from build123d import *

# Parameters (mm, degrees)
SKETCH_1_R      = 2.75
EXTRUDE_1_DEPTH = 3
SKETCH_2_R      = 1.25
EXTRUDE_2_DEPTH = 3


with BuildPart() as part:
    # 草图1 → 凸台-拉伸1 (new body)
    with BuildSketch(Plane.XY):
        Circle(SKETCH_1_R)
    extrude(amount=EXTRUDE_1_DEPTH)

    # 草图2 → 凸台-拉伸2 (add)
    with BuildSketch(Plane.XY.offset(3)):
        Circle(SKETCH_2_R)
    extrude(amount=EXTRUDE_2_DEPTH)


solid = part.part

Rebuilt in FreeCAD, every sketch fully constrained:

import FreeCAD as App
import Part
import Sketcher
from FreeCAD import Vector

doc = App.newDocument("Part")
body = doc.addObject("PartDesign::Body", "Body")

sketch1 = body.newObject("Sketcher::SketchObject", "Sketch")
sketch1.AttachmentSupport = (doc.getObject("XY_Plane"), [""])
sketch1.MapMode = "FlatFace"
sketch1.addGeometry(Part.Circle(Vector(0, 0, 0), Vector(0, 0, 1), 2.75), False)
sketch1.addConstraint(Sketcher.Constraint("Coincident", 0, 3, -1, 1))
sketch1.addConstraint(Sketcher.Constraint("Diameter", 0, 5.5))
pad1 = body.newObject("PartDesign::Pad", "Pad")
pad1.Profile = sketch1
pad1.Length = 3

sketch2 = body.newObject("Sketcher::SketchObject", "Sketch001")
sketch2.AttachmentSupport = (doc.getObject("XY_Plane"), [""])
sketch2.MapMode = "FlatFace"
sketch2.AttachmentOffset = App.Placement(Vector(0, 0, 3), App.Rotation())
sketch2.addGeometry(Part.Circle(Vector(0, 0, 0), Vector(0, 0, 1), 1.25), False)
sketch2.addConstraint(Sketcher.Constraint("Coincident", 0, 3, -1, 1))
sketch2.addConstraint(Sketcher.Constraint("Diameter", 0, 2.5))
pad2 = body.newObject("PartDesign::Pad", "Pad001")
pad2.Profile = sketch2
pad2.Length = 3

doc.recompute()
